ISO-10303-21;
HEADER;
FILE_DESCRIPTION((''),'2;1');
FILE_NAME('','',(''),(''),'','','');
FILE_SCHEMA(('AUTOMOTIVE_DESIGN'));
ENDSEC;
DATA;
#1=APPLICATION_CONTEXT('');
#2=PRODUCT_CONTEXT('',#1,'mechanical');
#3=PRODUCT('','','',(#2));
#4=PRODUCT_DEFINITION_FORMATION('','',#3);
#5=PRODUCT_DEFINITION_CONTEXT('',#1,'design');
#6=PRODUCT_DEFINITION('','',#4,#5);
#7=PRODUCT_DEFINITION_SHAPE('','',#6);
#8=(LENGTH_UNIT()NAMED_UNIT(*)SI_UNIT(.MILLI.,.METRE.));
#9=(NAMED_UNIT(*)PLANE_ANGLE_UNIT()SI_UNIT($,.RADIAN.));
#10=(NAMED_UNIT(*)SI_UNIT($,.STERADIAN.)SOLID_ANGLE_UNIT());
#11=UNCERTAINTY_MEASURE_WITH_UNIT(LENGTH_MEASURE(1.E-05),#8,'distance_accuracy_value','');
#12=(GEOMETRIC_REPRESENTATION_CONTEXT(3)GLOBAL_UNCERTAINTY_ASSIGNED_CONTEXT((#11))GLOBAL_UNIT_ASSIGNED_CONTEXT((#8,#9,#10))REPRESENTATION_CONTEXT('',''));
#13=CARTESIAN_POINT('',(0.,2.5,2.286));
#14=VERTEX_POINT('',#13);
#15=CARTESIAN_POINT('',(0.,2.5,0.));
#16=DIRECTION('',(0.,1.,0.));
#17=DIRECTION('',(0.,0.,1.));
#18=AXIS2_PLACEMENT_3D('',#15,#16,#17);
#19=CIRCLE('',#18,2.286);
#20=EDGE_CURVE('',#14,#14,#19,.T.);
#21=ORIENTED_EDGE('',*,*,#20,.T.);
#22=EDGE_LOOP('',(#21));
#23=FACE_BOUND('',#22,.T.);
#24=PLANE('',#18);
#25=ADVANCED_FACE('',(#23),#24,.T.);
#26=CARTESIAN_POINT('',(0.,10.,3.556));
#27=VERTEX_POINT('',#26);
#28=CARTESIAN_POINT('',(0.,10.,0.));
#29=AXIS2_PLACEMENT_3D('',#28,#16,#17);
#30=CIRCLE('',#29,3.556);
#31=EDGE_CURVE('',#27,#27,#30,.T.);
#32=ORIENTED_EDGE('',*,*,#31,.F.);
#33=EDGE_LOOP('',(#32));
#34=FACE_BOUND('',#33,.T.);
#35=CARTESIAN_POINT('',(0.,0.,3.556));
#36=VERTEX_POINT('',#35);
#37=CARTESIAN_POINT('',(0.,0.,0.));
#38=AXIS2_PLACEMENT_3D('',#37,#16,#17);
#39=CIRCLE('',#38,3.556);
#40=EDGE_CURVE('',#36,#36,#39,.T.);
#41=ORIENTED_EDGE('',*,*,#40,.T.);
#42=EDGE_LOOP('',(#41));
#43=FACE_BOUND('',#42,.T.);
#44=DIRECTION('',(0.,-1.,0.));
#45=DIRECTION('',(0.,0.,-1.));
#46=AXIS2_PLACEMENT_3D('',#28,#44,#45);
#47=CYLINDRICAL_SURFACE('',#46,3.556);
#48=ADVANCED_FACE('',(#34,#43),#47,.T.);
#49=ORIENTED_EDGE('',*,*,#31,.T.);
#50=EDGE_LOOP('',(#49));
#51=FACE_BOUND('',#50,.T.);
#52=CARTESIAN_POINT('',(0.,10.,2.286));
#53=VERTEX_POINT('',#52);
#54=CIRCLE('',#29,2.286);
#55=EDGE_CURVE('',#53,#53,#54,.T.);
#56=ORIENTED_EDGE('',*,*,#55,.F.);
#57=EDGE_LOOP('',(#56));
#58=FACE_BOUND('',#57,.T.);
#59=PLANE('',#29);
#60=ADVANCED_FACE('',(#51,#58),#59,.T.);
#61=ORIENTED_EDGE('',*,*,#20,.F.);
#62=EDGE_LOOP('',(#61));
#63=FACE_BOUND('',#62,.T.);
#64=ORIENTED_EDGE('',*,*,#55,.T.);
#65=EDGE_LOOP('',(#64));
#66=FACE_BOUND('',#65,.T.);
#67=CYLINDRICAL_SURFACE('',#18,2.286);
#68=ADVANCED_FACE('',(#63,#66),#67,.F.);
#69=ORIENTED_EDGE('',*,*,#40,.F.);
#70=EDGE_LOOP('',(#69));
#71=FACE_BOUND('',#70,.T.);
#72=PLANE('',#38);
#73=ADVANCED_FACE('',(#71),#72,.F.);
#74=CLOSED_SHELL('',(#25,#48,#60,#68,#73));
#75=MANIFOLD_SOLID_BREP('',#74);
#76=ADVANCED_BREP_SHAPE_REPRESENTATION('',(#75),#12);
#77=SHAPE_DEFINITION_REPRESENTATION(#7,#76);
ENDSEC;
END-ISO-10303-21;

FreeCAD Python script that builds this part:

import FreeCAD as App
import Part
import Sketcher
from FreeCAD import Vector
Q = App.Units.Quantity

doc = App.newDocument("Part")
body = doc.addObject("PartDesign::Body", "Body")

sketch1 = body.newObject("Sketcher::SketchObject", "Sketch")
sketch1.AttachmentSupport = (doc.getObject("XZ_Plane"), [""])
sketch1.MapMode = "FlatFace"
sketch1.addGeometry(Part.Circle(Vector(0, 0, 0), Vector(0, 0, 1), 3.556), False)
sketch1.addConstraint([
    Sketcher.Constraint("Coincident", 0, 3, -1, 1),
    Sketcher.Constraint("Diameter", 0, Q("7.112 mm")),
])
pad1 = body.newObject("PartDesign::Pad", "Pad")
pad1.Profile = sketch1
pad1.Length = 10
pad1.Reversed = True

sketch2 = body.newObject("Sketcher::SketchObject", "Sketch001")
sketch2.AttachmentSupport = (doc.getObject("XZ_Plane"), [""])
sketch2.MapMode = "FlatFace"
sketch2.AttachmentOffset = App.Placement(Vector(0, 0, -10), App.Rotation())
sketch2.addGeometry(Part.Circle(Vector(0, 0, 0), Vector(0, 0, 1), 2.286), False)
sketch2.addConstraint([
    Sketcher.Constraint("Coincident", 0, 3, -1, 1),
    Sketcher.Constraint("Diameter", 0, Q("4.572 mm")),
])
pocket1 = body.newObject("PartDesign::Pocket", "Pocket")
pocket1.Profile = sketch2
pocket1.Length = 7.5
pocket1.Reversed = True

doc.recompute()
